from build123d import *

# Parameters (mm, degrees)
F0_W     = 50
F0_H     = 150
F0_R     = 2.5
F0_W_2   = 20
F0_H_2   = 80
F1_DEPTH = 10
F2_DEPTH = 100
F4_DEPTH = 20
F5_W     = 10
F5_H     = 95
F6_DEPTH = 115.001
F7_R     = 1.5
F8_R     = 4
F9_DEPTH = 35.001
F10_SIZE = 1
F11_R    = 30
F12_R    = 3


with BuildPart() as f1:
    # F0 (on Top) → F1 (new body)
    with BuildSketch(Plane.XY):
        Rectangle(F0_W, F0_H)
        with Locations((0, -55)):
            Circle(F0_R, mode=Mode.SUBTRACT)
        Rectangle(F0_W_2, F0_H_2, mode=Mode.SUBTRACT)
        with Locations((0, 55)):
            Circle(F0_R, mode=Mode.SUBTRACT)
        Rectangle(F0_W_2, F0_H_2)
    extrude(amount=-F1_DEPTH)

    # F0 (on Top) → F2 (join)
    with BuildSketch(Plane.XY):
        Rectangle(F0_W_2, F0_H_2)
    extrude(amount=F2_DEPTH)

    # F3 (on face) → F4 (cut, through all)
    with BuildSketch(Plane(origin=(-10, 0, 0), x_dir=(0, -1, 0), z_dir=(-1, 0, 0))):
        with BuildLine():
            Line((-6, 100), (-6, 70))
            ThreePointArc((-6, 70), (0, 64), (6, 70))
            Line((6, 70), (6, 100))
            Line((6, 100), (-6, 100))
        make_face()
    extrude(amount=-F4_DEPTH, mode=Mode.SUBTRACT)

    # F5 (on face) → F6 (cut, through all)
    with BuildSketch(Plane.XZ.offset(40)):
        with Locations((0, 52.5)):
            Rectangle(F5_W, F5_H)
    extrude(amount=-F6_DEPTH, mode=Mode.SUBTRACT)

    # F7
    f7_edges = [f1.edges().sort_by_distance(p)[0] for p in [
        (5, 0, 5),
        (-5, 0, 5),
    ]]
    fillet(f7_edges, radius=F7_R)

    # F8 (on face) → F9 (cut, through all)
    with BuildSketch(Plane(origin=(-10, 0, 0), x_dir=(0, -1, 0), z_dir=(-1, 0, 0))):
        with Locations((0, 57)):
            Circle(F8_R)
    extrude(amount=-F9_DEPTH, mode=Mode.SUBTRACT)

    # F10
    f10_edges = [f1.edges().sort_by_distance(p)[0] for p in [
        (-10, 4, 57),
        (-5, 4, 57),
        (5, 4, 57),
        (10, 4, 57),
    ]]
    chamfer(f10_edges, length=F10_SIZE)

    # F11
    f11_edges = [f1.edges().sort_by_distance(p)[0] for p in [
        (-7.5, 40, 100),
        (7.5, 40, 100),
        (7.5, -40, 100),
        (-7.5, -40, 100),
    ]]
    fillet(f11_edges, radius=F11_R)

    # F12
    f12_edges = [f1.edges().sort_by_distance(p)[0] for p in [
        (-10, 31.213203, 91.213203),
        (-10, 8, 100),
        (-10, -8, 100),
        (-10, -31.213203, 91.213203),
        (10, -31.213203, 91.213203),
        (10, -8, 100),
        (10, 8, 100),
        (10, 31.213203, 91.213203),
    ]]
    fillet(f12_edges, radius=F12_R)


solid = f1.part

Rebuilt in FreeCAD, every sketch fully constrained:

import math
import FreeCAD as App
import Part
import Sketcher
Q = App.Units.Quantity


def edges_at(feature, points):
    """Names of the edges that pass closest to the given points."""
    edges = feature.Shape.Edges
    near = lambda p: min(range(len(edges)), key=lambda i: edges[i].distToShape(Part.Vertex(*p))[0])
    return sorted({f"Edge{near(p) + 1}" for p in points})

doc = App.newDocument("Part")
body = doc.addObject("PartDesign::Body", "Body")

# Sketch on XY plane
sketch1 = body.newObject("Sketcher::SketchObject", "Sketch")
sketch1.AttachmentSupport = (doc.getObject("XY_Plane"), [""])
sketch1.MapMode = "FlatFace"
sketch1.addGeometry(Part.LineSegment(App.Vector(-25, 75, 0), App.Vector(-25, -75, 0)), False)
sketch1.addGeometry(Part.LineSegment(App.Vector(-25, -75, 0), App.Vector(25, -75, 0)), False)
sketch1.addGeometry(Part.LineSegment(App.Vector(25, -75, 0), App.Vector(25, 75, 0)), False)
sketch1.addGeometry(Part.LineSegment(App.Vector(25, 75, 0), App.Vector(-25, 75, 0)), False)
sketch1.addGeometry(Part.Circle(App.Vector(0, -55, 0), App.Vector(0, 0, 1), 2.5), False)
sketch1.addGeometry(Part.Circle(App.Vector(0, 55, 0), App.Vector(0, 0, 1), 2.5), False)
sketch1.addConstraint(Sketcher.Constraint("Coincident", 0, 2, 1, 1))
sketch1.addConstraint(Sketcher.Constraint("Coincident", 1, 2, 2, 1))
sketch1.addConstraint(Sketcher.Constraint("Coincident", 2, 2, 3, 1))
sketch1.addConstraint(Sketcher.Constraint("Coincident", 3, 2, 0, 1))
sketch1.addConstraint(Sketcher.Constraint("Vertical", 0))
sketch1.addConstraint(Sketcher.Constraint("Horizontal", 1))
sketch1.addConstraint(Sketcher.Constraint("Vertical", 2))
sketch1.addConstraint(Sketcher.Constraint("Horizontal", 3))
sketch1.addConstraint(Sketcher.Constraint("Equal", 4, 5))
sketch1.addConstraint(Sketcher.Constraint("Symmetric", 4, 3, 5, 3, -1, 1))
sketch1.addConstraint(Sketcher.Constraint("Symmetric", 0, 2, 2, 2, -1, 1))
sketch1.addConstraint(Sketcher.Constraint("PointOnObject", 4, 3, -2))
sketch1.addConstraint(Sketcher.Constraint("Diameter", 4, Q("5 mm")))
sketch1.addConstraint(Sketcher.Constraint("DistanceX", 1, 1, 1, 2, Q("50 mm")))
sketch1.addConstraint(Sketcher.Constraint("DistanceY", 0, 2, 0, 1, Q("150 mm")))
sketch1.addConstraint(Sketcher.Constraint("DistanceY", 4, 3, -1, 1, Q("55 mm")))
pad1 = body.newObject("PartDesign::Pad", "Pad")
pad1.Profile = sketch1
pad1.Length = 10
pad1.Reversed = True

# Sketch on XY plane
sketch2 = body.newObject("Sketcher::SketchObject", "Sketch001")
sketch2.AttachmentSupport = (doc.getObject("XY_Plane"), [""])
sketch2.MapMode = "FlatFace"
sketch2.addGeometry(Part.LineSegment(App.Vector(-10, 40, 0), App.Vector(-10, -40, 0)), False)
sketch2.addGeometry(Part.LineSegment(App.Vector(-10, -40, 0), App.Vector(10, -40, 0)), False)
sketch2.addGeometry(Part.LineSegment(App.Vector(10, -40, 0), App.Vector(10, 40, 0)), False)
sketch2.addGeometry(Part.LineSegment(App.Vector(10, 40, 0), App.Vector(-10, 40, 0)), False)
sketch2.addConstraint(Sketcher.Constraint("Coincident", 0, 2, 1, 1))
sketch2.addConstraint(Sketcher.Constraint("Coincident", 1, 2, 2, 1))
sketch2.addConstraint(Sketcher.Constraint("Coincident", 2, 2, 3, 1))
sketch2.addConstraint(Sketcher.Constraint("Coincident", 3, 2, 0, 1))
sketch2.addConstraint(Sketcher.Constraint("Vertical", 0))
sketch2.addConstraint(Sketcher.Constraint("Horizontal", 1))
sketch2.addConstraint(Sketcher.Constraint("Vertical", 2))
sketch2.addConstraint(Sketcher.Constraint("Horizontal", 3))
sketch2.addConstraint(Sketcher.Constraint("Symmetric", 0, 2, 2, 2, -1, 1))
sketch2.addConstraint(Sketcher.Constraint("DistanceX", 1, 1, 1, 2, Q("20 mm")))
sketch2.addConstraint(Sketcher.Constraint("DistanceY", 0, 2, 0, 1, Q("80 mm")))
pad2 = body.newObject("PartDesign::Pad", "Pad001")
pad2.Profile = sketch2
pad2.Length = 100

# Sketch on YZ plane
sketch3 = body.newObject("Sketcher::SketchObject", "Sketch002")
sketch3.AttachmentSupport = (doc.getObject("YZ_Plane"), [""])
sketch3.MapMode = "FlatFace"
sketch3.AttachmentOffset = App.Placement(App.Vector(0, 0, -10), App.Rotation())
sketch3.addGeometry(Part.LineSegment(App.Vector(6, 100, 0), App.Vector(6, 70, 0)), False)
sketch3.addGeometry(Part.ArcOfCircle(Part.Circle(App.Vector(0, 70, 0), App.Vector(0, 0, 1), 6), math.radians(180), math.radians(360)), False)
sketch3.addGeometry(Part.LineSegment(App.Vector(-6, 70, 0), App.Vector(-6, 100, 0)), False)
sketch3.addGeometry(Part.LineSegment(App.Vector(-6, 100, 0), App.Vector(6, 100, 0)), False)
sketch3.addConstraint(Sketcher.Constraint("Tangent", 0, 2, 1, 2))
sketch3.addConstraint(Sketcher.Constraint("Tangent", 1, 1, 2, 1))
sketch3.addConstraint(Sketcher.Constraint("Coincident", 2, 2, 3, 1))
sketch3.addConstraint(Sketcher.Constraint("Coincident", 3, 2, 0, 1))
sketch3.addConstraint(Sketcher.Constraint("Vertical", 0))
sketch3.addConstraint(Sketcher.Constraint("Vertical", 2))
sketch3.addConstraint(Sketcher.Constraint("Horizontal", 3))
sketch3.addConstraint(Sketcher.Constraint("PointOnObject", 1, 3, -2))
sketch3.addConstraint(Sketcher.Constraint("Radius", 1, Q("6 mm")))
sketch3.addConstraint(Sketcher.Constraint("DistanceY", 0, 2, 0, 1, Q("30 mm")))
sketch3.addConstraint(Sketcher.Constraint("DistanceY", -1, 1, 1, 3, Q("70 mm")))
pocket1 = body.newObject("PartDesign::Pocket", "Pocket")
pocket1.Profile = sketch3
pocket1.Type = "ThroughAll"
pocket1.Reversed = True

# Sketch on XZ plane
sketch4 = body.newObject("Sketcher::SketchObject", "Sketch003")
sketch4.AttachmentSupport = (doc.getObject("XZ_Plane"), [""])
sketch4.MapMode = "FlatFace"
sketch4.AttachmentOffset = App.Placement(App.Vector(0, 0, 40), App.Rotation())
sketch4.addGeometry(Part.LineSegment(App.Vector(-5, 100, 0), App.Vector(-5, 5, 0)), False)
sketch4.addGeometry(Part.LineSegment(App.Vector(-5, 5, 0), App.Vector(5, 5, 0)), False)
sketch4.addGeometry(Part.LineSegment(App.Vector(5, 5, 0), App.Vector(5, 100, 0)), False)
sketch4.addGeometry(Part.LineSegment(App.Vector(5, 100, 0), App.Vector(-5, 100, 0)), False)
sketch4.addConstraint(Sketcher.Constraint("Coincident", 0, 2, 1, 1))
sketch4.addConstraint(Sketcher.Constraint("Coincident", 1, 2, 2, 1))
sketch4.addConstraint(Sketcher.Constraint("Coincident", 2, 2, 3, 1))
sketch4.addConstraint(Sketcher.Constraint("Coincident", 3, 2, 0, 1))
sketch4.addConstraint(Sketcher.Constraint("Vertical", 0))
sketch4.addConstraint(Sketcher.Constraint("Horizontal", 1))
sketch4.addConstraint(Sketcher.Constraint("Vertical", 2))
sketch4.addConstraint(Sketcher.Constraint("Horizontal", 3))
sketch4.addConstraint(Sketcher.Constraint("DistanceX", 1, 1, 1, 2, Q("10 mm")))
sketch4.addConstraint(Sketcher.Constraint("DistanceY", 0, 2, 0, 1, Q("95 mm")))
sketch4.addConstraint(Sketcher.Constraint("DistanceX", 0, 2, -1, 1, Q("5 mm")))
sketch4.addConstraint(Sketcher.Constraint("DistanceY", -1, 1, 0, 2, Q("5 mm")))
pocket2 = body.newObject("PartDesign::Pocket", "Pocket001")
pocket2.Profile = sketch4
pocket2.Type = "ThroughAll"
doc.recompute()

fillet = body.newObject("PartDesign::Fillet", "Fillet")
fillet.Base = (pocket2, edges_at(pocket2, [(5, 0, 5), (-5, 0, 5)]))
fillet.Radius = 1.5

# Sketch on YZ plane
sketch5 = body.newObject("Sketcher::SketchObject", "Sketch004")
sketch5.AttachmentSupport = (doc.getObject("YZ_Plane"), [""])
sketch5.MapMode = "FlatFace"
sketch5.AttachmentOffset = App.Placement(App.Vector(0, 0, -10), App.Rotation())
sketch5.addGeometry(Part.Circle(App.Vector(0, 57, 0), App.Vector(0, 0, 1), 4), False)
sketch5.addConstraint(Sketcher.Constraint("PointOnObject", 0, 3, -2))
sketch5.addConstraint(Sketcher.Constraint("Diameter", 0, Q("8 mm")))
sketch5.addConstraint(Sketcher.Constraint("DistanceY", -1, 1, 0, 3, Q("57 mm")))
pocket3 = body.newObject("PartDesign::Pocket", "Pocket002")
pocket3.Profile = sketch5
pocket3.Type = "ThroughAll"
pocket3.Reversed = True
doc.recompute()

chamfer = body.newObject("PartDesign::Chamfer", "Chamfer")
chamfer.Base = (pocket3, edges_at(pocket3, [
    (-10, 4, 57),
    (-5, 4, 57),
    (5, 4, 57),
    (10, 4, 57),
]))
chamfer.Size = 1
doc.recompute()

fillet2 = body.newObject("PartDesign::Fillet", "Fillet001")
fillet2.Base = (chamfer, edges_at(chamfer, [
    (-7.5, 40, 100),
    (7.5, 40, 100),
    (7.5, -40, 100),
    (-7.5, -40, 100),
]))
fillet2.Radius = 30
doc.recompute()

fillet3 = body.newObject("PartDesign::Fillet", "Fillet002")
fillet3.Base = (fillet2, edges_at(fillet2, [
    (-10, 31.213, 91.213),
    (-10, 8, 100),
    (-10, -8, 100),
    (-10, -31.213, 91.213),
    (10, -31.213, 91.213),
    (10, -8, 100),
    (10, 8, 100),
    (10, 31.213, 91.213),
]))
fillet3.Radius = 3

doc.recompute()
